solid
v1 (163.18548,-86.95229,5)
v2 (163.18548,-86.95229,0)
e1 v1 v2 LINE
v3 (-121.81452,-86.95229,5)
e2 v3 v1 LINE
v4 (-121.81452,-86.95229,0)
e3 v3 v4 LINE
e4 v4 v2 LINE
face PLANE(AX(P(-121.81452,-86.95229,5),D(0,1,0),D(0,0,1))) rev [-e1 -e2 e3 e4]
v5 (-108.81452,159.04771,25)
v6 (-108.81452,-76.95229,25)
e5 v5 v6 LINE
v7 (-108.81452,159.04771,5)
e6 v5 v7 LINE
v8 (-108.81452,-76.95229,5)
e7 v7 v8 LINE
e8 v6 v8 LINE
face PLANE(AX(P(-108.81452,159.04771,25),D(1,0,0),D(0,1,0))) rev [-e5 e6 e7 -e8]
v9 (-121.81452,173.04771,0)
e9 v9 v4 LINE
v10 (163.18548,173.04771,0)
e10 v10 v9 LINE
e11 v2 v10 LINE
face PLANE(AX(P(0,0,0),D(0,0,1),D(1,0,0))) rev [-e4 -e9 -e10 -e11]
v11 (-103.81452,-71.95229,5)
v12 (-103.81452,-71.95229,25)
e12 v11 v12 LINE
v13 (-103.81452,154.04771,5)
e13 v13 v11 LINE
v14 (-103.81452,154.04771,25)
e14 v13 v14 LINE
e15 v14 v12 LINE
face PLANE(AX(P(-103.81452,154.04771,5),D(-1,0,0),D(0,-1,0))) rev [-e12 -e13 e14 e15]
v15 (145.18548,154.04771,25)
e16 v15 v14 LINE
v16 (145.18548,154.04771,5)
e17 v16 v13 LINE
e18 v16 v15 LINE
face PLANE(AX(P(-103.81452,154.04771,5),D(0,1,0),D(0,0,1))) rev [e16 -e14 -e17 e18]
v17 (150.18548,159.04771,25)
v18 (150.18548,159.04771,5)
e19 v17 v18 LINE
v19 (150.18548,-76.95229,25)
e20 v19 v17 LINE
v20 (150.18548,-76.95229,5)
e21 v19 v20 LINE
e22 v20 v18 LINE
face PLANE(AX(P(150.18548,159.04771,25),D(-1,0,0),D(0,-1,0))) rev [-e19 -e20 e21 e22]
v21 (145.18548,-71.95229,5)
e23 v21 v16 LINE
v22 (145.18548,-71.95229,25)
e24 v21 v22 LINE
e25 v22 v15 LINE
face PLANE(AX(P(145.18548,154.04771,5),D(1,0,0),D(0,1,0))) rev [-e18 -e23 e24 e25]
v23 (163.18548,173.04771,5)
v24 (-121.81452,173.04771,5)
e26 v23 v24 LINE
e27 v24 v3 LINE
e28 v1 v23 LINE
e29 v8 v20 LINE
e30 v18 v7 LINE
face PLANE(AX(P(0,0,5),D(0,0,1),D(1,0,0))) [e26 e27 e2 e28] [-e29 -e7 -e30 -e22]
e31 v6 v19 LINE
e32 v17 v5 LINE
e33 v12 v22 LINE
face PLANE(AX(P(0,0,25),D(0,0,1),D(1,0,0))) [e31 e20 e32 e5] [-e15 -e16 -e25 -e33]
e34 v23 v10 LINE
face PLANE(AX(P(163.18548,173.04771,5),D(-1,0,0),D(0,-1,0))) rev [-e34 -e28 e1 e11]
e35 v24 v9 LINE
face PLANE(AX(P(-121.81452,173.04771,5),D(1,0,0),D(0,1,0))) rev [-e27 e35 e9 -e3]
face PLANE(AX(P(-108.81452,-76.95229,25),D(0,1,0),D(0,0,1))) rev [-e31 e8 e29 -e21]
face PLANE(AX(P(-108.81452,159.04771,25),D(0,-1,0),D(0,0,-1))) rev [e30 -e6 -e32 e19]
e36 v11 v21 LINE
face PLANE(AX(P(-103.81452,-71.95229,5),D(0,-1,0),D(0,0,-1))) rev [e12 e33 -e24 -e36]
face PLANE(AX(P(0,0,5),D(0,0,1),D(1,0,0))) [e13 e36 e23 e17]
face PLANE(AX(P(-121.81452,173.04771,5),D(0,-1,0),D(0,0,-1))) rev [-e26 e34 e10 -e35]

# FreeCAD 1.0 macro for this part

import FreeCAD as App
import Part
import Sketcher
Q = App.Units.Quantity


def add_polygon(sketch, points):
    """Adds a closed chain of lines whose ends are joined by coincident constraints."""
    first, n = sketch.GeometryCount, len(points)
    for a, b in zip(points, points[1:] + points[:1]):
        sketch.addGeometry(Part.LineSegment(App.Vector(*a, 0), App.Vector(*b, 0)), False)
    for i in range(n):
        sketch.addConstraint(Sketcher.Constraint("Coincident", first + i, 2, first + (i + 1) % n, 1))

doc = App.newDocument("Part")
body = doc.addObject("PartDesign::Body", "Body")

# Sketch on XY plane
sketch1 = body.newObject("Sketcher::SketchObject", "Sketch")
sketch1.AttachmentSupport = (doc.getObject("XY_Plane"), [""])
sketch1.MapMode = "FlatFace"
add_polygon(sketch1, [(-122, 173), (-122, -87), (163, -87), (163, 173)])  # lines 0-3
sketch1.addConstraint([
    Sketcher.Constraint("Vertical", 0),
    Sketcher.Constraint("Horizontal", 1),
    Sketcher.Constraint("Vertical", 2),
    Sketcher.Constraint("Horizontal", 3),
    Sketcher.Constraint("DistanceX", 1, 1, 1, 2, Q("285 mm")),
    Sketcher.Constraint("DistanceY", 0, 2, 0, 1, Q("260 mm")),
    Sketcher.Constraint("DistanceX", 0, 2, -1, 1, Q("121.81452 mm")),
    Sketcher.Constraint("DistanceY", 0, 2, -1, 1, Q("86.95229 mm")),
])
pad1 = body.newObject("PartDesign::Pad", "Pad")
pad1.Profile = sketch1
pad1.Length = 5

# Sketch on XY plane
sketch2 = body.newObject("Sketcher::SketchObject", "Sketch001")
sketch2.AttachmentSupport = (doc.getObject("XY_Plane"), [""])
sketch2.MapMode = "FlatFace"
sketch2.AttachmentOffset = App.Placement(App.Vector(0, 0, 5), App.Rotation())
add_polygon(sketch2, [(-109, 159), (-109, -77), (150, -77), (150, 159)])  # lines 0-3
sketch2.addConstraint([
    Sketcher.Constraint("Vertical", 0),
    Sketcher.Constraint("Horizontal", 1),
    Sketcher.Constraint("Vertical", 2),
    Sketcher.Constraint("Horizontal", 3),
    Sketcher.Constraint("DistanceX", 1, 1, 1, 2, Q("259 mm")),
    Sketcher.Constraint("DistanceY", 0, 2, 0, 1, Q("236 mm")),
    Sketcher.Constraint("DistanceX", 0, 2, -1, 1, Q("108.81452 mm")),
    Sketcher.Constraint("DistanceY", 0, 2, -1, 1, Q("76.95229 mm")),
])
pad2 = body.newObject("PartDesign::Pad", "Pad001")
pad2.Profile = sketch2
pad2.Length = 20

# Sketch on XY plane
sketch3 = body.newObject("Sketcher::SketchObject", "Sketch002")
sketch3.AttachmentSupport = (doc.getObject("XY_Plane"), [""])
sketch3.MapMode = "FlatFace"
sketch3.AttachmentOffset = App.Placement(App.Vector(0, 0, 25), App.Rotation())
add_polygon(sketch3, [(-104, 154), (-104, -72), (145, -72), (145, 154)])  # lines 0-3
sketch3.addConstraint([
    Sketcher.Constraint("Vertical", 0),
    Sketcher.Constraint("Horizontal", 1),
    Sketcher.Constraint("Vertical", 2),
    Sketcher.Constraint("Horizontal", 3),
    Sketcher.Constraint("DistanceX", 1, 1, 1, 2, Q("249 mm")),
    Sketcher.Constraint("DistanceY", 0, 2, 0, 1, Q("226 mm")),
    Sketcher.Constraint("DistanceX", 0, 2, -1, 1, Q("103.81452 mm")),
    Sketcher.Constraint("DistanceY", 0, 2, -1, 1, Q("71.95229 mm")),
])
pocket1 = body.newObject("PartDesign::Pocket", "Pocket")
pocket1.Profile = sketch3
pocket1.Length = 20

doc.recompute()
